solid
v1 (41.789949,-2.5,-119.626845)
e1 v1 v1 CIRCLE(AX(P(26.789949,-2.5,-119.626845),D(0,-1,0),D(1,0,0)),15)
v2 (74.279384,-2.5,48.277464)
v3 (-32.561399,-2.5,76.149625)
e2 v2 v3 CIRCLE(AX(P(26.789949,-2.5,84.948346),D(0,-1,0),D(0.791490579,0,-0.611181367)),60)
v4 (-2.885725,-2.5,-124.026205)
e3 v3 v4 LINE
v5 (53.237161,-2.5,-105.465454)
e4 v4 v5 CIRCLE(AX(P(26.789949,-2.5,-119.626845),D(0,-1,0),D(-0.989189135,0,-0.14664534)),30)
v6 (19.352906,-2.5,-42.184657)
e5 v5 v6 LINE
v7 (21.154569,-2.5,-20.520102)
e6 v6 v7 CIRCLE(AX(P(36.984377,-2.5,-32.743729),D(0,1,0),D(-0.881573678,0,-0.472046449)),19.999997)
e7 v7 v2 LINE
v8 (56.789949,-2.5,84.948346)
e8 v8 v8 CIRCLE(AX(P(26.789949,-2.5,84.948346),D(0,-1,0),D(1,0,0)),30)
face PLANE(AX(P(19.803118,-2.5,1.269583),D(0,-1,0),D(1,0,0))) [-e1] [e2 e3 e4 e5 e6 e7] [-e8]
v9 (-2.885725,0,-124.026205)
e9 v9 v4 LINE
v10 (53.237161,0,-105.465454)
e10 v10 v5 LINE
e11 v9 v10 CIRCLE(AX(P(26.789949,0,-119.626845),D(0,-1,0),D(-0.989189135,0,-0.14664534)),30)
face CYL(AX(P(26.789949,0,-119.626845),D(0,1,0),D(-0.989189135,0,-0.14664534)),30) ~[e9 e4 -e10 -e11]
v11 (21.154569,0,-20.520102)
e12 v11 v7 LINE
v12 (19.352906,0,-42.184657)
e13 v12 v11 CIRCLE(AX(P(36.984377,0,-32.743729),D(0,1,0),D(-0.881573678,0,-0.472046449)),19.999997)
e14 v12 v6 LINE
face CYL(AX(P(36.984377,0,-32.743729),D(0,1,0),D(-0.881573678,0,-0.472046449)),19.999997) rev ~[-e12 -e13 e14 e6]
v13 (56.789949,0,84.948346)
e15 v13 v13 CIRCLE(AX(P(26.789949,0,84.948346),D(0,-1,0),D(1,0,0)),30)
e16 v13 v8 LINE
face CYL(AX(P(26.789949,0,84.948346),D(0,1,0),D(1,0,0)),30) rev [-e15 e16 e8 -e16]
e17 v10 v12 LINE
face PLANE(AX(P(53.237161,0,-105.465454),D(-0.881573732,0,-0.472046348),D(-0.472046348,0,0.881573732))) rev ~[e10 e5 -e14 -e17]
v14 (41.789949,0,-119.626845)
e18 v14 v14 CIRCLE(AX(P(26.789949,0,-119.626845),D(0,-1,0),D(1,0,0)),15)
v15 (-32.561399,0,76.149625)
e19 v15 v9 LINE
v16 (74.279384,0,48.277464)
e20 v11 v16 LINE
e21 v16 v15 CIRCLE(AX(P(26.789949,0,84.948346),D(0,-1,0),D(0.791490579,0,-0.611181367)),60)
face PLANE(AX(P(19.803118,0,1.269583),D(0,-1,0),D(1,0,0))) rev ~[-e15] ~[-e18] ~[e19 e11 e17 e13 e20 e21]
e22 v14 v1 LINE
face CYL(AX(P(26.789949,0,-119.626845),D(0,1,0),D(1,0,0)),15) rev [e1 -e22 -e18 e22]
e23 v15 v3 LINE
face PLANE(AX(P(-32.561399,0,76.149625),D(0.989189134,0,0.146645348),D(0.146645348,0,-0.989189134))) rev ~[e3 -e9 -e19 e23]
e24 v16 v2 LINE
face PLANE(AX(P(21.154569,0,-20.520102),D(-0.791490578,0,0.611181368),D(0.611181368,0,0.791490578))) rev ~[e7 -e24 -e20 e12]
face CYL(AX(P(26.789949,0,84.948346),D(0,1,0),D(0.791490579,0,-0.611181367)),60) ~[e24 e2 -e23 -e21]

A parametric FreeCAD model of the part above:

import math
import FreeCAD as App
import Part
import Sketcher

doc = App.newDocument("Part")
body = doc.addObject("PartDesign::Body", "Body")

# Sketch on XZ plane
sketch1 = body.newObject("Sketcher::SketchObject", "Sketch")
sketch1.AttachmentSupport = (doc.getObject("XZ_Plane"), [""])
sketch1.MapMode = "FlatFace"
sketch1.addGeometry(Part.LineSegment(App.Vector(-33, 76, 0), App.Vector(-3, -124, 0)), False)
sketch1.addGeometry(Part.ArcOfCircle(Part.Circle(App.Vector(27, -120, 0), App.Vector(0, 0, 1), 30), math.radians(-172), math.radians(28)), False)
sketch1.addGeometry(Part.LineSegment(App.Vector(53, -105, 0), App.Vector(19, -42, 0)), False)
sketch1.addGeometry(Part.ArcOfCircle(Part.Circle(App.Vector(37, -33, 0), App.Vector(0, 0, 1), 20), math.radians(142), math.radians(208)), False)
sketch1.addGeometry(Part.LineSegment(App.Vector(21, -21, 0), App.Vector(74, 48, 0)), False)
sketch1.addGeometry(Part.ArcOfCircle(Part.Circle(App.Vector(27, 85, 0), App.Vector(0, 0, 1), 60), math.radians(-38), math.radians(188)), False)
sketch1.addGeometry(Part.Circle(App.Vector(27, -120, 0), App.Vector(0, 0, 1), 15), False)
sketch1.addGeometry(Part.Circle(App.Vector(27, 85, 0), App.Vector(0, 0, 1), 30), False)
sketch1.addConstraint(Sketcher.Constraint("Tangent", 0, 2, 1, 1))
sketch1.addConstraint(Sketcher.Constraint("Tangent", 1, 2, 2, 1))
sketch1.addConstraint(Sketcher.Constraint("Tangent", 2, 2, 3, 2))
sketch1.addConstraint(Sketcher.Constraint("Tangent", 3, 1, 4, 1))
sketch1.addConstraint(Sketcher.Constraint("Tangent", 4, 2, 5, 1))
sketch1.addConstraint(Sketcher.Constraint("Tangent", 5, 2, 0, 1))
sketch1.addConstraint(Sketcher.Constraint("Coincident", 6, 3, 1, 3))
sketch1.addConstraint(Sketcher.Constraint("Coincident", 7, 3, 5, 3))
sketch1.addConstraint(Sketcher.Constraint("Equal", 1, 7))
sketch1.addConstraint(Sketcher.Constraint("Vertical", 1, 3, 5, 3))
sketch1.addConstraint(Sketcher.Constraint("Diameter", 6, 30.0))
sketch1.addConstraint(Sketcher.Constraint("Diameter", 7, 60.0))
sketch1.addConstraint(Sketcher.Constraint("Radius", 5, 60.0))
sketch1.addConstraint(Sketcher.Constraint("Radius", 3, 19.999997))
sketch1.addConstraint(Sketcher.Constraint("DistanceY", 3, 1, -1, 1, 20.520102))
sketch1.addConstraint(Sketcher.Constraint("DistanceX", 5, 2, -1, 1, 32.561399))
sketch1.addConstraint(Sketcher.Constraint("DistanceY", 1, 2, 7, 3, 190.4138))
sketch1.addConstraint(Sketcher.Constraint("DistanceY", 3, 3, -1, 1, 32.743729))
sketch1.addConstraint(Sketcher.Constraint("DistanceX", -1, 1, 1, 2, 53.237161))
pad1 = body.newObject("PartDesign::Pad", "Pad")
pad1.Profile = sketch1
pad1.Length = 2.5

doc.recompute()
